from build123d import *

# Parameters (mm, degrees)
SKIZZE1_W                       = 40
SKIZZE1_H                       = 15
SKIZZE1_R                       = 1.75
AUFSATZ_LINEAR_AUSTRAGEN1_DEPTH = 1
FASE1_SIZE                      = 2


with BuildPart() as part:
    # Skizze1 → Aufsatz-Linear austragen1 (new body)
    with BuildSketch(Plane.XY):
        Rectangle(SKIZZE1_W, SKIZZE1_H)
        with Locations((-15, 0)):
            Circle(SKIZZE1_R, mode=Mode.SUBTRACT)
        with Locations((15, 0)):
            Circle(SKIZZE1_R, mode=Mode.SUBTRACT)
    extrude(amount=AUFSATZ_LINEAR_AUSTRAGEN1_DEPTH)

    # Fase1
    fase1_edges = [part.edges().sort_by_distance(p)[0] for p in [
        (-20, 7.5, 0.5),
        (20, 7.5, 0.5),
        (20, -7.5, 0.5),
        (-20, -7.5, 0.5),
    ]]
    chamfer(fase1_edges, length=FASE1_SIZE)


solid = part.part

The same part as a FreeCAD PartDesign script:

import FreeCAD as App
import Part
import Sketcher
Q = App.Units.Quantity


def edges_at(feature, points):
    """Names of the edges that pass closest to the given points."""
    edges = feature.Shape.Edges
    near = lambda p: min(range(len(edges)), key=lambda i: edges[i].distToShape(Part.Vertex(*p))[0])
    return sorted({f"Edge{near(p) + 1}" for p in points})

doc = App.newDocument("Part")
body = doc.addObject("PartDesign::Body", "Body")

# Sketch on XY plane
sketch1 = body.newObject("Sketcher::SketchObject", "Sketch")
sketch1.AttachmentSupport = (doc.getObject("XY_Plane"), [""])
sketch1.MapMode = "FlatFace"
sketch1.addGeometry([
    Part.LineSegment(App.Vector(-20, 7.5, 0), App.Vector(-20, -7.5, 0)),  # 0
    Part.LineSegment(App.Vector(-20, -7.5, 0), App.Vector(20, -7.5, 0)),  # 1
    Part.LineSegment(App.Vector(20, -7.5, 0), App.Vector(20, 7.5, 0)),  # 2
    Part.LineSegment(App.Vector(20, 7.5, 0), App.Vector(-20, 7.5, 0)),  # 3
    Part.Circle(App.Vector(-15, 0, 0), App.Vector(0, 0, 1), 1.75),  # 4
    Part.Circle(App.Vector(15, 0, 0), App.Vector(0, 0, 1), 1.75),  # 5
], False)
sketch1.addConstraint([
    Sketcher.Constraint("Coincident", 0, 2, 1, 1),
    Sketcher.Constraint("Coincident", 1, 2, 2, 1),
    Sketcher.Constraint("Coincident", 2, 2, 3, 1),
    Sketcher.Constraint("Coincident", 3, 2, 0, 1),
    Sketcher.Constraint("Vertical", 0),
    Sketcher.Constraint("Horizontal", 1),
    Sketcher.Constraint("Vertical", 2),
    Sketcher.Constraint("Horizontal", 3),
    Sketcher.Constraint("Equal", 4, 5),
    Sketcher.Constraint("Symmetric", 4, 3, 5, 3, -1, 1),
    Sketcher.Constraint("Symmetric", 0, 2, 2, 2, -1, 1),
    Sketcher.Constraint("PointOnObject", 4, 3, -1),
    Sketcher.Constraint("Diameter", 4, Q("3.5 mm")),
    Sketcher.Constraint("DistanceX", 1, 1, 1, 2, Q("40 mm")),
    Sketcher.Constraint("DistanceY", 0, 2, 0, 1, Q("15 mm")),
    Sketcher.Constraint("DistanceX", 4, 3, -1, 1, Q("15 mm")),
])
pad1 = body.newObject("PartDesign::Pad", "Pad")
pad1.Profile = sketch1
pad1.Length = 1
doc.recompute()

chamfer = body.newObject("PartDesign::Chamfer", "Chamfer")
chamfer.Base = (pad1, edges_at(pad1, [
    (-20, 7.5, 0.5),
    (20, 7.5, 0.5),
    (20, -7.5, 0.5),
    (-20, -7.5, 0.5),
]))
chamfer.Size = 2

doc.recompute()
